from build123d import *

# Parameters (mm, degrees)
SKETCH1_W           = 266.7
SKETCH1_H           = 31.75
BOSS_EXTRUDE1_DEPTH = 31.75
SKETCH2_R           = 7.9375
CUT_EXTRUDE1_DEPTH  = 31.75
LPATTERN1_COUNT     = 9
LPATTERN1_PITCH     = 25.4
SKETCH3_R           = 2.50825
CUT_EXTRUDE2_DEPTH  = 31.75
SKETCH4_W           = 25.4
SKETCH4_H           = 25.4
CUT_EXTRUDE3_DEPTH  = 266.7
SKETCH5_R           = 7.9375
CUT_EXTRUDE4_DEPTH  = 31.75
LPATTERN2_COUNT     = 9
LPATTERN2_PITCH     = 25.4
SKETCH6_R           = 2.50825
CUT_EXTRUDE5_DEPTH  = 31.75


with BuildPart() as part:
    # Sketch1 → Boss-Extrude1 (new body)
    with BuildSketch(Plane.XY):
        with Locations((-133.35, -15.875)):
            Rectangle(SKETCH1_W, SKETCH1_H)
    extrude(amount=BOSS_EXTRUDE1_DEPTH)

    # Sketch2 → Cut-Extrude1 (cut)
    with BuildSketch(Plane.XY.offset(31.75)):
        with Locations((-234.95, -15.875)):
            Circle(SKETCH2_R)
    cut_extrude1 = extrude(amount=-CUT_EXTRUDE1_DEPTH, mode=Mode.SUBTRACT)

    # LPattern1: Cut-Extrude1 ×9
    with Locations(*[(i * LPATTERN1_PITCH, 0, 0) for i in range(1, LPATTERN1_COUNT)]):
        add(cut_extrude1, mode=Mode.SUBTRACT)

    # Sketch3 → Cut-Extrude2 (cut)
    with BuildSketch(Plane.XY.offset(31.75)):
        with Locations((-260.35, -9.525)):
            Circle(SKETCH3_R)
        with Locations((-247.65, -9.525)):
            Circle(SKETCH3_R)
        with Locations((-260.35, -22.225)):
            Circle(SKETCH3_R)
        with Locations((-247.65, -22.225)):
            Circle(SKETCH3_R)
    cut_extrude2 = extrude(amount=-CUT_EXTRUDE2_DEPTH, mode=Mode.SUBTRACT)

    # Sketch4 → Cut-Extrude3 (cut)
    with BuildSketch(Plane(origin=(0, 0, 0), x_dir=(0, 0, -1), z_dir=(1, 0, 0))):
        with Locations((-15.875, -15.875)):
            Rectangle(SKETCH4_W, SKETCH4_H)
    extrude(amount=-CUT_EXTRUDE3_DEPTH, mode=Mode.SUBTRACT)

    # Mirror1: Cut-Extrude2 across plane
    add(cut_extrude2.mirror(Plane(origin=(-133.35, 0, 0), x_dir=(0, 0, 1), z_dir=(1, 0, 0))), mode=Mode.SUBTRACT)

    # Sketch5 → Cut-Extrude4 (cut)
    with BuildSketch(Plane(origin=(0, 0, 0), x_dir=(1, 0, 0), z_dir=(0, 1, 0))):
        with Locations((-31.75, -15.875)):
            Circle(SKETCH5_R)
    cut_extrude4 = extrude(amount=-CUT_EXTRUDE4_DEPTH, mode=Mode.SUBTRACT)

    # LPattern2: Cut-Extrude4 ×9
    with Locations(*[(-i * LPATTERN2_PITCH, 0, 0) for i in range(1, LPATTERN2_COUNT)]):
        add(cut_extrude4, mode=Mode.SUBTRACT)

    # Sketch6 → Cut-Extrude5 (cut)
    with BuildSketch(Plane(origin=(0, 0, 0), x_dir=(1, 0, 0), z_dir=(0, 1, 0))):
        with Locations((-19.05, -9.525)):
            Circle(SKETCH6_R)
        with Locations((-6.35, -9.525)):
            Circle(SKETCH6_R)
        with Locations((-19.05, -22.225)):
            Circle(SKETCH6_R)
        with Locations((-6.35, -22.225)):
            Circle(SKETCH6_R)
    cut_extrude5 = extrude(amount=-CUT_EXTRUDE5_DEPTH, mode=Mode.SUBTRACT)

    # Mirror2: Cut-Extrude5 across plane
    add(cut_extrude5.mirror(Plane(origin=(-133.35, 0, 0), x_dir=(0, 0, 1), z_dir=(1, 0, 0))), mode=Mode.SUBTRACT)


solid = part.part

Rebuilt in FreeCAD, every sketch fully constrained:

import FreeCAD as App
import Part
import Sketcher
from FreeCAD import Vector
Q = App.Units.Quantity

doc = App.newDocument("Part")
body = doc.addObject("PartDesign::Body", "Body")

# Sketch on XY plane
sketch1 = doc.addObject("Sketcher::SketchObject", "Sketch")
body.addObject(sketch1)
sketch1.AttachmentSupport = (doc.XY_Plane, [""])
sketch1.MapMode = "FlatFace"
sketch1.addGeometry(Part.LineSegment(Vector(-267, 0, 0), Vector(-267, -32, 0)), False)
sketch1.addGeometry(Part.LineSegment(Vector(-267, -32, 0), Vector(0, -32, 0)), False)
sketch1.addGeometry(Part.LineSegment(Vector(0, -32, 0), Vector(0, 0, 0)), False)
sketch1.addGeometry(Part.LineSegment(Vector(0, 0, 0), Vector(-267, 0, 0)), False)
sketch1.addConstraint(Sketcher.Constraint("Coincident", 0, 2, 1, 1))
sketch1.addConstraint(Sketcher.Constraint("Coincident", 1, 2, 2, 1))
sketch1.addConstraint(Sketcher.Constraint("Coincident", 2, 2, 3, 1))
sketch1.addConstraint(Sketcher.Constraint("Coincident", 3, 2, 0, 1))
sketch1.addConstraint(Sketcher.Constraint("Vertical", 0))
sketch1.addConstraint(Sketcher.Constraint("Horizontal", 1))
sketch1.addConstraint(Sketcher.Constraint("Vertical", 2))
sketch1.addConstraint(Sketcher.Constraint("Horizontal", 3))
sketch1.addConstraint(Sketcher.Constraint("Coincident", 2, 2, -1, 1))
sketch1.addConstraint(Sketcher.Constraint("DistanceX", 1, 1, 1, 2, Q("10.5 in")))
sketch1.addConstraint(Sketcher.Constraint("DistanceY", 0, 2, 0, 1, Q("1.25 in")))
pad1 = doc.addObject("PartDesign::Pad", "Pad")
body.addObject(pad1)
pad1.Profile = sketch1
pad1.Length = Q("1.25 in")

# Sketch on XY plane
sketch2 = doc.addObject("Sketcher::SketchObject", "Sketch001")
body.addObject(sketch2)
sketch2.AttachmentSupport = (doc.XY_Plane, [""])
sketch2.MapMode = "FlatFace"
sketch2.AttachmentOffset = App.Placement(Vector(0, 0, 1.25 * 25.4), App.Rotation())
sketch2.addGeometry(Part.Circle(Vector(-235, -16, 0), Vector(0, 0, 1), 8), False)
sketch2.addConstraint(Sketcher.Constraint("Diameter", 0, Q("0.625 in")))
sketch2.addConstraint(Sketcher.Constraint("DistanceX", 0, 3, -1, 1, Q("9.25 in")))
sketch2.addConstraint(Sketcher.Constraint("DistanceY", 0, 3, -1, 1, Q("0.625 in")))
pocket1 = doc.addObject("PartDesign::Pocket", "Pocket")
body.addObject(pocket1)
pocket1.Profile = sketch2
pocket1.Length = Q("1.25 in")
doc.recompute()

linearpattern = doc.addObject("PartDesign::LinearPattern", "LinearPattern")
body.addObject(linearpattern)
linearpattern.Originals = [pocket1]
linearpattern.Direction = (doc.X_Axis, [""])
linearpattern.Mode = "offset"
linearpattern.Offset = Q("1 in")
linearpattern.Occurrences = 9
body.Tip = linearpattern

# Sketch on XY plane
sketch3 = doc.addObject("Sketcher::SketchObject", "Sketch002")
body.addObject(sketch3)
sketch3.AttachmentSupport = (doc.XY_Plane, [""])
sketch3.MapMode = "FlatFace"
sketch3.AttachmentOffset = App.Placement(Vector(0, 0, 1.25 * 25.4), App.Rotation())
sketch3.addGeometry(Part.Circle(Vector(-260.4, -9.5, 0), Vector(0, 0, 1), 2.5), False)
sketch3.addGeometry(Part.Circle(Vector(-247.7, -9.5, 0), Vector(0, 0, 1), 2.5), False)
sketch3.addGeometry(Part.Circle(Vector(-260.4, -22.2, 0), Vector(0, 0, 1), 2.5), False)
sketch3.addGeometry(Part.Circle(Vector(-247.7, -22.2, 0), Vector(0, 0, 1), 2.5), False)
sketch3.addConstraint(Sketcher.Constraint("Equal", 0, 1))
sketch3.addConstraint(Sketcher.Constraint("Equal", 1, 2))
sketch3.addConstraint(Sketcher.Constraint("Equal", 2, 3))
sketch3.addConstraint(Sketcher.Constraint("Horizontal", 0, 3, 1, 3))
sketch3.addConstraint(Sketcher.Constraint("Horizontal", 2, 3, 3, 3))
sketch3.addConstraint(Sketcher.Constraint("Vertical", 0, 3, 2, 3))
sketch3.addConstraint(Sketcher.Constraint("Vertical", 1, 3, 3, 3))
sketch3.addConstraint(Sketcher.Constraint("Diameter", 0, Q("0.1975 in")))
sketch3.addConstraint(Sketcher.Constraint("DistanceX", 0, 3, 1, 3, Q("0.5 in")))
sketch3.addConstraint(Sketcher.Constraint("DistanceY", 2, 3, 0, 3, Q("0.5 in")))
sketch3.addConstraint(Sketcher.Constraint("DistanceX", 0, 3, -1, 1, Q("10.25 in")))
sketch3.addConstraint(Sketcher.Constraint("DistanceY", 0, 3, -1, 1, Q("0.375 in")))
pocket2 = doc.addObject("PartDesign::Pocket", "Pocket001")
body.addObject(pocket2)
pocket2.Profile = sketch3
pocket2.Length = Q("1.25 in")

# Sketch on YZ plane
sketch4 = doc.addObject("Sketcher::SketchObject", "Sketch003")
body.addObject(sketch4)
sketch4.AttachmentSupport = (doc.YZ_Plane, [""])
sketch4.MapMode = "FlatFace"
sketch4.addGeometry(Part.LineSegment(Vector(-3, 29, 0), Vector(-29, 29, 0)), False)
sketch4.addGeometry(Part.LineSegment(Vector(-29, 29, 0), Vector(-29, 3, 0)), False)
sketch4.addGeometry(Part.LineSegment(Vector(-29, 3, 0), Vector(-3, 3, 0)), False)
sketch4.addGeometry(Part.LineSegment(Vector(-3, 3, 0), Vector(-3, 29, 0)), False)
sketch4.addConstraint(Sketcher.Constraint("Coincident", 0, 2, 1, 1))
sketch4.addConstraint(Sketcher.Constraint("Coincident", 1, 2, 2, 1))
sketch4.addConstraint(Sketcher.Constraint("Coincident", 2, 2, 3, 1))
sketch4.addConstraint(Sketcher.Constraint("Coincident", 3, 2, 0, 1))
sketch4.addConstraint(Sketcher.Constraint("Horizontal", 0))
sketch4.addConstraint(Sketcher.Constraint("Vertical", 1))
sketch4.addConstraint(Sketcher.Constraint("Horizontal", 2))
sketch4.addConstraint(Sketcher.Constraint("Vertical", 3))
sketch4.addConstraint(Sketcher.Constraint("Equal", 2, 1))
sketch4.addConstraint(Sketcher.Constraint("DistanceX", 0, 2, 0, 1, Q("1 in")))
sketch4.addConstraint(Sketcher.Constraint("DistanceX", 0, 2, -1, 1, Q("1.125 in")))
sketch4.addConstraint(Sketcher.Constraint("DistanceY", -1, 1, 0, 2, Q("1.125 in")))
pocket3 = doc.addObject("PartDesign::Pocket", "Pocket002")
body.addObject(pocket3)
pocket3.Profile = sketch4
pocket3.Length = Q("10.5 in")
doc.recompute()

datumplane = doc.addObject("PartDesign::Plane", "DatumPlane")
body.addObject(datumplane)
datumplane.AttachmentSupport = (doc.YZ_Plane, [""])
datumplane.MapMode = "FlatFace"
datumplane.AttachmentOffset = App.Placement(Vector(0, 0, -5.25 * 25.4), App.Rotation())
mirrored = doc.addObject("PartDesign::Mirrored", "Mirrored")
body.addObject(mirrored)
mirrored.Originals = [pocket2]
mirrored.MirrorPlane = (datumplane, [""])
body.Tip = mirrored

# Sketch on XZ plane
sketch5 = doc.addObject("Sketcher::SketchObject", "Sketch004")
body.addObject(sketch5)
sketch5.AttachmentSupport = (doc.XZ_Plane, [""])
sketch5.MapMode = "FlatFace"
sketch5.addGeometry(Part.Circle(Vector(-32, 16, 0), Vector(0, 0, 1), 8), False)
sketch5.addConstraint(Sketcher.Constraint("Diameter", 0, Q("0.625 in")))
sketch5.addConstraint(Sketcher.Constraint("DistanceX", 0, 3, -1, 1, Q("1.25 in")))
sketch5.addConstraint(Sketcher.Constraint("DistanceY", -1, 1, 0, 3, Q("0.625 in")))
pocket4 = doc.addObject("PartDesign::Pocket", "Pocket003")
body.addObject(pocket4)
pocket4.Profile = sketch5
pocket4.Length = Q("1.25 in")
pocket4.Reversed = True
doc.recompute()

linearpattern2 = doc.addObject("PartDesign::LinearPattern", "LinearPattern001")
body.addObject(linearpattern2)
linearpattern2.Originals = [pocket4]
linearpattern2.Direction = (doc.X_Axis, [""])
linearpattern2.Mode = "offset"
linearpattern2.Offset = Q("1 in")
linearpattern2.Occurrences = 9
linearpattern2.Reversed = True
body.Tip = linearpattern2

# Sketch on XZ plane
sketch6 = doc.addObject("Sketcher::SketchObject", "Sketch005")
body.addObject(sketch6)
sketch6.AttachmentSupport = (doc.XZ_Plane, [""])
sketch6.MapMode = "FlatFace"
sketch6.addGeometry(Part.Circle(Vector(-19.1, 9.5, 0), Vector(0, 0, 1), 2.5), False)
sketch6.addGeometry(Part.Circle(Vector(-6.3, 9.5, 0), Vector(0, 0, 1), 2.5), False)
sketch6.addGeometry(Part.Circle(Vector(-19.1, 22.2, 0), Vector(0, 0, 1), 2.5), False)
sketch6.addGeometry(Part.Circle(Vector(-6.3, 22.2, 0), Vector(0, 0, 1), 2.5), False)
sketch6.addConstraint(Sketcher.Constraint("Equal", 0, 1))
sketch6.addConstraint(Sketcher.Constraint("Equal", 1, 2))
sketch6.addConstraint(Sketcher.Constraint("Equal", 2, 3))
sketch6.addConstraint(Sketcher.Constraint("Horizontal", 0, 3, 1, 3))
sketch6.addConstraint(Sketcher.Constraint("Horizontal", 2, 3, 3, 3))
sketch6.addConstraint(Sketcher.Constraint("Vertical", 0, 3, 2, 3))
sketch6.addConstraint(Sketcher.Constraint("Vertical", 1, 3, 3, 3))
sketch6.addConstraint(Sketcher.Constraint("Diameter", 0, Q("0.1975 in")))
sketch6.addConstraint(Sketcher.Constraint("DistanceX", 0, 3, 1, 3, Q("0.5 in")))
sketch6.addConstraint(Sketcher.Constraint("DistanceY", 0, 3, 2, 3, Q("0.5 in")))
sketch6.addConstraint(Sketcher.Constraint("DistanceX", 0, 3, -1, 1, Q("0.75 in")))
sketch6.addConstraint(Sketcher.Constraint("DistanceY", -1, 1, 0, 3, Q("0.375 in")))
pocket5 = doc.addObject("PartDesign::Pocket", "Pocket004")
body.addObject(pocket5)
pocket5.Profile = sketch6
pocket5.Length = Q("1.25 in")
pocket5.Reversed = True
doc.recompute()

datumplane2 = doc.addObject("PartDesign::Plane", "DatumPlane001")
body.addObject(datumplane2)
datumplane2.AttachmentSupport = (doc.YZ_Plane, [""])
datumplane2.MapMode = "FlatFace"
datumplane2.AttachmentOffset = App.Placement(Vector(0, 0, -5.25 * 25.4), App.Rotation())
mirrored2 = doc.addObject("PartDesign::Mirrored", "Mirrored001")
body.addObject(mirrored2)
mirrored2.Originals = [pocket5]
mirrored2.MirrorPlane = (datumplane2, [""])
body.Tip = mirrored2

doc.recompute()
